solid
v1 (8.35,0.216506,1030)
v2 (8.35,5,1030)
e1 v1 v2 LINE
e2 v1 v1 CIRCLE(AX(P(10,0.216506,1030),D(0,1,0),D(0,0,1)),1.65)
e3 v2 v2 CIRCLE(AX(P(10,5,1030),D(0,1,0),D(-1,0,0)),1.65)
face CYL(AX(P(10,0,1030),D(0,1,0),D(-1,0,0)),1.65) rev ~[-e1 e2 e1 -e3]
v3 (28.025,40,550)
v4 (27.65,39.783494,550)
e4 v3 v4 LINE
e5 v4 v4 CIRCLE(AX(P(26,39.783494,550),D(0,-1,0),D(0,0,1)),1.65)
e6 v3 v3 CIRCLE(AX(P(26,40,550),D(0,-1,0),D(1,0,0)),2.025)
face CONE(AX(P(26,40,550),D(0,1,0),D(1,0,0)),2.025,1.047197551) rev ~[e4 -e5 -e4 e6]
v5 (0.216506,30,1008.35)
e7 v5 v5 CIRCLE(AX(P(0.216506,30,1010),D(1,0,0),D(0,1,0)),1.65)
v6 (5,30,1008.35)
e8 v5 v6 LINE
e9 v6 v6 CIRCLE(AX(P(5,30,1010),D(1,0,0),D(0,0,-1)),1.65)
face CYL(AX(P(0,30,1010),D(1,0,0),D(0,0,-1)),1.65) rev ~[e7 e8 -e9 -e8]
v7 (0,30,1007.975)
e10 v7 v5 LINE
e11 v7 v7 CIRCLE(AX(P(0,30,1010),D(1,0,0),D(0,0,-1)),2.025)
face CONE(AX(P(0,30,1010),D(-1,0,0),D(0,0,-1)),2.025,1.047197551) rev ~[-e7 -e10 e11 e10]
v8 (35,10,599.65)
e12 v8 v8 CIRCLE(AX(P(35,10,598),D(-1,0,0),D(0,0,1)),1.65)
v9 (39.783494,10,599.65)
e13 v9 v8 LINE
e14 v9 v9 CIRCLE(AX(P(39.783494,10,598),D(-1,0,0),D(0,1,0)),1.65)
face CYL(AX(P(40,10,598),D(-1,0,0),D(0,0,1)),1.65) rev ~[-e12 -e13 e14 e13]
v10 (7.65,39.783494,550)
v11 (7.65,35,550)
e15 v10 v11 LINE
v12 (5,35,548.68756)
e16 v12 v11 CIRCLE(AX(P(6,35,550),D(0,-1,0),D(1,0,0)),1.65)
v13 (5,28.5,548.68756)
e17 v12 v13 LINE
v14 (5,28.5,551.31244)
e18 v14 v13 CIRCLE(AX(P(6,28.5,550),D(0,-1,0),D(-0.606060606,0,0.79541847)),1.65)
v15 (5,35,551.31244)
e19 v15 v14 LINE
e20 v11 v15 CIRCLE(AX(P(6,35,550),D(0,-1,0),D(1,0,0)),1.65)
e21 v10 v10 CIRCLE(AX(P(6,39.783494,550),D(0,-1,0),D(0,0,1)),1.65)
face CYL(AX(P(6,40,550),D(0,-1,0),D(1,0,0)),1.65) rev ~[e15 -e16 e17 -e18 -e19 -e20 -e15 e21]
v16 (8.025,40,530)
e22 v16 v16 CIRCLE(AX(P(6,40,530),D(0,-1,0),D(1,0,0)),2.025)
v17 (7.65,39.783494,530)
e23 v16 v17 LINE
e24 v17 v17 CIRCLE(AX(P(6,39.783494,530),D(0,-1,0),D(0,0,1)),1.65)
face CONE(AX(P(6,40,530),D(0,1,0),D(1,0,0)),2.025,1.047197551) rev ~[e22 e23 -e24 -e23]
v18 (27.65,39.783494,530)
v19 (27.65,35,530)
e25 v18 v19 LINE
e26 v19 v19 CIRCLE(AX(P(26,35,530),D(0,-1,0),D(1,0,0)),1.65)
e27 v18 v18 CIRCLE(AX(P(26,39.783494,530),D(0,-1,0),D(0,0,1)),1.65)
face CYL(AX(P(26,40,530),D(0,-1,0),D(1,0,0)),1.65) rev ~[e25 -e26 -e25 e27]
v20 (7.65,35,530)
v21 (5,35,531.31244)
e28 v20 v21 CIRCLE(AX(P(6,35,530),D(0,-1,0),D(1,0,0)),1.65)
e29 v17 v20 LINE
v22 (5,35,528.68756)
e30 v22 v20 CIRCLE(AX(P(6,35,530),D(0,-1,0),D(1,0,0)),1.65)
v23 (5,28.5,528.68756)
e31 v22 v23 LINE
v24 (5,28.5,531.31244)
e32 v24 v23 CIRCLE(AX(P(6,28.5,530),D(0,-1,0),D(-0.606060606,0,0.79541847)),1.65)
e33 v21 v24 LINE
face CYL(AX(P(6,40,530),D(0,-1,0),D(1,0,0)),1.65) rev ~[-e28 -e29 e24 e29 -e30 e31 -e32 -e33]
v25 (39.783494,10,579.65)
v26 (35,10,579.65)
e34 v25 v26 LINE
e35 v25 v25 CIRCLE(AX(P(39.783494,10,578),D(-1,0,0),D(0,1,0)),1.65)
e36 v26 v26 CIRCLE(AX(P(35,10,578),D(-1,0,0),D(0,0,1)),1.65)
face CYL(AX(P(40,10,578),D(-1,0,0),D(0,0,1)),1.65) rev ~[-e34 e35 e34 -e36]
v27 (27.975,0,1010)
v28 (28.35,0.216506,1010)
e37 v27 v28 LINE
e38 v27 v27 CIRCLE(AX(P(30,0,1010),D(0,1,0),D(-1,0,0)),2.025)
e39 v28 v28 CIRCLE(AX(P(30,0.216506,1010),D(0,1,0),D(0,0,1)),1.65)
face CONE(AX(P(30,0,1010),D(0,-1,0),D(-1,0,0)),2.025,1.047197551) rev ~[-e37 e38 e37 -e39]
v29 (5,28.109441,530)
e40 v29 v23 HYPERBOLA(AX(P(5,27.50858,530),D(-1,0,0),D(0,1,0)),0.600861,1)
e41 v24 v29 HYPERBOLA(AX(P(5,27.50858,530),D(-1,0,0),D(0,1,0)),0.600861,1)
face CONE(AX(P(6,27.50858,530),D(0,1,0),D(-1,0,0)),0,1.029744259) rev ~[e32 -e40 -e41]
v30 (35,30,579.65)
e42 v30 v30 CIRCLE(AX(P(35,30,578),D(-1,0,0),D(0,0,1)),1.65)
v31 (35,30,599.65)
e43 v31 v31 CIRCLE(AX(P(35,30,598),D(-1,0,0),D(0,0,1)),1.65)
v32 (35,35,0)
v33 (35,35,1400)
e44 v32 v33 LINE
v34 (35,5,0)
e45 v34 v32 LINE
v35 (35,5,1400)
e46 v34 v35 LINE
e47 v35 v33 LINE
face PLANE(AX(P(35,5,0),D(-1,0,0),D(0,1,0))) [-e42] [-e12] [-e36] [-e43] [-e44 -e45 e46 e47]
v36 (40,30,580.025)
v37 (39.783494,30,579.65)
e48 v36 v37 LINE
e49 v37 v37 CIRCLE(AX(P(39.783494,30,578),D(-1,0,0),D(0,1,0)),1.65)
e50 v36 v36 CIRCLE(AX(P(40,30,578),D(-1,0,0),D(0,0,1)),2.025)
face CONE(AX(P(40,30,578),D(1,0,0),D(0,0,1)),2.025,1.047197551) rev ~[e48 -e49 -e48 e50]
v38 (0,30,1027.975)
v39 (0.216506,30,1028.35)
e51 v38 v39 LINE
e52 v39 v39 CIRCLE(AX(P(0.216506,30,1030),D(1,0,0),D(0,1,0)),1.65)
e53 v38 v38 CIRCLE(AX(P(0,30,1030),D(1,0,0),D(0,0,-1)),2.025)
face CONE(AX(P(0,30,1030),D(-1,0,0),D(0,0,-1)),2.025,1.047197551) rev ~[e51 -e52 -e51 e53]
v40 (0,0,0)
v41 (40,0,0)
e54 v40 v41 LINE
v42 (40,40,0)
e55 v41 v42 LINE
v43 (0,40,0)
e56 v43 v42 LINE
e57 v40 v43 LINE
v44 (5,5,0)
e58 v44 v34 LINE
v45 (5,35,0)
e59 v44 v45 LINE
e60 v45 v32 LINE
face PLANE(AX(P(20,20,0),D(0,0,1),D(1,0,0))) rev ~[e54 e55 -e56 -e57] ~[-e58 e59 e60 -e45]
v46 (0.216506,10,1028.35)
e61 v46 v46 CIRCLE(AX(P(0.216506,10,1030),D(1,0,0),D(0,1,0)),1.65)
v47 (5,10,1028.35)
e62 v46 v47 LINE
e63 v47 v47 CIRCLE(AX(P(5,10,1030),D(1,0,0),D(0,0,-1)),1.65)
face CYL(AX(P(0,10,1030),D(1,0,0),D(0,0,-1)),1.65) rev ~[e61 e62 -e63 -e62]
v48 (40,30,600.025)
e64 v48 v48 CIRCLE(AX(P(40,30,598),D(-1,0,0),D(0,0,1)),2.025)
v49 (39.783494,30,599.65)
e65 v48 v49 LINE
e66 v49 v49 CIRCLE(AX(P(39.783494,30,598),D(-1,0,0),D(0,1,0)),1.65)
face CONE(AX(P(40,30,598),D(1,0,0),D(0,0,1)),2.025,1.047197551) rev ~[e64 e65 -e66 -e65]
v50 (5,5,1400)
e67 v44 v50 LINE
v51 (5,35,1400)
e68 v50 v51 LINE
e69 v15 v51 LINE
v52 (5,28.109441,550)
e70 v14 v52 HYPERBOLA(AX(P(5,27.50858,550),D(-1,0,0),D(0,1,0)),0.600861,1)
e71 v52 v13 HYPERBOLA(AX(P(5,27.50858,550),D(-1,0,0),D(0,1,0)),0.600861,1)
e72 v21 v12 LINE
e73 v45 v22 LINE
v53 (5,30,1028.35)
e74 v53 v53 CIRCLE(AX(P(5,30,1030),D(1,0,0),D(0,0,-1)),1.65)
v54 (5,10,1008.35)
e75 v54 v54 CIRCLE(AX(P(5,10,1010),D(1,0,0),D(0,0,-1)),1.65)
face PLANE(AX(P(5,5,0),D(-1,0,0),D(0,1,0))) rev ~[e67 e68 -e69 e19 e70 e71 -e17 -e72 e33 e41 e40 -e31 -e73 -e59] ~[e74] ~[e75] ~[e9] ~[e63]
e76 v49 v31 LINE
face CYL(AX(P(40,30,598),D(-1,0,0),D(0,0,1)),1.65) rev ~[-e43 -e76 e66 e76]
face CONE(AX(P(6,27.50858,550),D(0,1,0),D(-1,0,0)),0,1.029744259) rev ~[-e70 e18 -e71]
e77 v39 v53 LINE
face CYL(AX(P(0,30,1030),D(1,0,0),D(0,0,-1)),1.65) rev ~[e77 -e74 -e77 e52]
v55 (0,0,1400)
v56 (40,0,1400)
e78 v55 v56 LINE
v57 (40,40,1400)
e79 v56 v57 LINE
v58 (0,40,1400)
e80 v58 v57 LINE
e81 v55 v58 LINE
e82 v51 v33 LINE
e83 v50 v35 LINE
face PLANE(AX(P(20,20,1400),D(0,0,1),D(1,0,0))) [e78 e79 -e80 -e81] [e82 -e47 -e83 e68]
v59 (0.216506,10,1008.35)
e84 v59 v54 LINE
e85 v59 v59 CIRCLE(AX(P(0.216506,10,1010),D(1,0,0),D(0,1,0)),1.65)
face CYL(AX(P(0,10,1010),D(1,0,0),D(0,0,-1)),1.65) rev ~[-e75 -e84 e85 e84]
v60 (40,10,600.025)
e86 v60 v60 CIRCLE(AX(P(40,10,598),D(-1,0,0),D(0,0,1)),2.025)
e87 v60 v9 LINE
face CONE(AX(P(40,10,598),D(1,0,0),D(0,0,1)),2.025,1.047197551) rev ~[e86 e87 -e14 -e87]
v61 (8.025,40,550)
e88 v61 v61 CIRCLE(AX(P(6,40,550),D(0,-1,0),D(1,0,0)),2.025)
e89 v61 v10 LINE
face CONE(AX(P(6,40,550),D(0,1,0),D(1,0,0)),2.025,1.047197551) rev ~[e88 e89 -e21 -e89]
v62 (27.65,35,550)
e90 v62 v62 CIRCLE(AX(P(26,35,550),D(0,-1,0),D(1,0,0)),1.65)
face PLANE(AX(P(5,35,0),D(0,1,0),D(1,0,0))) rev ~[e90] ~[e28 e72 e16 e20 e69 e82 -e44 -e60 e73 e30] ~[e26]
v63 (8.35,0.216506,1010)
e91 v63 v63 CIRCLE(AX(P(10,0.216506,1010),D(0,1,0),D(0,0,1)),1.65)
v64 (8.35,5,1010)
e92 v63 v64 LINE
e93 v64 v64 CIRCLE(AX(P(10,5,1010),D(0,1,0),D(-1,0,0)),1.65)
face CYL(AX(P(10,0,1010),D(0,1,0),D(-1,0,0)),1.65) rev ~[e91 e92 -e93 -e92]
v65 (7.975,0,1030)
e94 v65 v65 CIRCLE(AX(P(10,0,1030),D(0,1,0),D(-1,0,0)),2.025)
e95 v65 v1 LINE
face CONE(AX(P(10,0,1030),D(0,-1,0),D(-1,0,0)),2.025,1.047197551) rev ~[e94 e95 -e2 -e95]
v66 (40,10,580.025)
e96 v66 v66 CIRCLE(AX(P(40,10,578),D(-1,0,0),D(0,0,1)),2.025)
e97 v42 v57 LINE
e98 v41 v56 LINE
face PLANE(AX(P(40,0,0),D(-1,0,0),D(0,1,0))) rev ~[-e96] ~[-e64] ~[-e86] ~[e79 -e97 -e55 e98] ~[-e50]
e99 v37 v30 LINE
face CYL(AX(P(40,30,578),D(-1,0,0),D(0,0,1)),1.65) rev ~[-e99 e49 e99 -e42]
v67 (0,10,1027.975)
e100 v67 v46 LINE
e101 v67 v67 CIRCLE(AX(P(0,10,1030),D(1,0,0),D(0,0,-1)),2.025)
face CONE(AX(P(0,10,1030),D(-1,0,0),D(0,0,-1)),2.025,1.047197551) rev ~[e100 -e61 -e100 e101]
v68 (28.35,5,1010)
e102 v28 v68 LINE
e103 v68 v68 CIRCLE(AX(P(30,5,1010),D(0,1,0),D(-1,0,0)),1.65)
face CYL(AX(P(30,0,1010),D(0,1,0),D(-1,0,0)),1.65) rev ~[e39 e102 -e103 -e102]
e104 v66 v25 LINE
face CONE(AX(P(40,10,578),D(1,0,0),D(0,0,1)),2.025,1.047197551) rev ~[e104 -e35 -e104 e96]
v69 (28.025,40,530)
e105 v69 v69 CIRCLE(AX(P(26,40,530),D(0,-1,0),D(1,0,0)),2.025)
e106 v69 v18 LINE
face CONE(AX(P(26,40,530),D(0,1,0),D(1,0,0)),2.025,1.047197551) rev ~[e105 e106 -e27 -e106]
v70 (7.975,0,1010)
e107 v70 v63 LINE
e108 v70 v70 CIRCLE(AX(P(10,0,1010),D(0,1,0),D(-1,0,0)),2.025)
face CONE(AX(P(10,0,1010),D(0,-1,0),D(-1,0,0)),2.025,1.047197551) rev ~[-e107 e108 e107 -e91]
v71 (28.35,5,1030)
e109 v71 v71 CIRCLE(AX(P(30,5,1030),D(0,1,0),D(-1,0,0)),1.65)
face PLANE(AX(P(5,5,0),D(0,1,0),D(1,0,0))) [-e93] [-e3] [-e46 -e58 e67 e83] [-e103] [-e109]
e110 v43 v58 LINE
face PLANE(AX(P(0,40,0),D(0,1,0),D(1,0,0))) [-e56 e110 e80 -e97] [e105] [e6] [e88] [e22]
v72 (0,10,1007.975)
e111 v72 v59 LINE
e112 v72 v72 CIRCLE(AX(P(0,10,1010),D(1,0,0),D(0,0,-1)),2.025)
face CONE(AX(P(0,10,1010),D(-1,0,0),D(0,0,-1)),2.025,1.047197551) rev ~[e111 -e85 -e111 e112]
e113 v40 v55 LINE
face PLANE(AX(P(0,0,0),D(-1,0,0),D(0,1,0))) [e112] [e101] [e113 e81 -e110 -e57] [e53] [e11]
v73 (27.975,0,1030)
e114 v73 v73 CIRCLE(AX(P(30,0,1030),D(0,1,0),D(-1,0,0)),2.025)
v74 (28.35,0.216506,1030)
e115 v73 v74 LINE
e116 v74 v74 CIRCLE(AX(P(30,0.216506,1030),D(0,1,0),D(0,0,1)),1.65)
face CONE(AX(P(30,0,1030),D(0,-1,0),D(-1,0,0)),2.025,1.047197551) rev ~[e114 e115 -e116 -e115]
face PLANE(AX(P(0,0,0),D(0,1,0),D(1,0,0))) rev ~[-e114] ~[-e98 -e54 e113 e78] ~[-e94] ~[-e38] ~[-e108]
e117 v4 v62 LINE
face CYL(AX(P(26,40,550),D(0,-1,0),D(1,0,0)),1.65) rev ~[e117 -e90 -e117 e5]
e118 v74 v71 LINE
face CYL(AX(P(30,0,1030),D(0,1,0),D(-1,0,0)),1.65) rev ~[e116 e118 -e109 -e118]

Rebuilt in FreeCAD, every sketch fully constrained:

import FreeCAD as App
import Part
import Sketcher


def add_polygon(sketch, points):
    """Adds a closed chain of lines whose ends are joined by coincident constraints."""
    first, n = sketch.GeometryCount, len(points)
    for a, b in zip(points, points[1:] + points[:1]):
        sketch.addGeometry(Part.LineSegment(App.Vector(*a, 0), App.Vector(*b, 0)), False)
    for i in range(n):
        sketch.addConstraint(Sketcher.Constraint("Coincident", first + i, 2, first + (i + 1) % n, 1))

doc = App.newDocument("Part")
body = doc.addObject("PartDesign::Body", "Body")

# Sketch on XY plane
sketch1 = body.newObject("Sketcher::SketchObject", "Sketch")
sketch1.AttachmentSupport = (doc.getObject("XY_Plane"), [""])
sketch1.MapMode = "FlatFace"
add_polygon(sketch1, [(0, 40), (0, 0), (40, 0), (40, 40)])  # lines 0-3
add_polygon(sketch1, [(35, 5), (5, 5), (5, 35), (35, 35)])  # lines 4-7
sketch1.addConstraint(Sketcher.Constraint("Vertical", 0))
sketch1.addConstraint(Sketcher.Constraint("Horizontal", 1))
sketch1.addConstraint(Sketcher.Constraint("Vertical", 2))
sketch1.addConstraint(Sketcher.Constraint("Horizontal", 3))
sketch1.addConstraint(Sketcher.Constraint("Horizontal", 4))
sketch1.addConstraint(Sketcher.Constraint("Vertical", 5))
sketch1.addConstraint(Sketcher.Constraint("Horizontal", 6))
sketch1.addConstraint(Sketcher.Constraint("Vertical", 7))
sketch1.addConstraint(Sketcher.Constraint("Coincident", 0, 2, -1, 1))
sketch1.addConstraint(Sketcher.Constraint("Equal", 3, 0))
sketch1.addConstraint(Sketcher.Constraint("Equal", 6, 5))
sketch1.addConstraint(Sketcher.Constraint("DistanceX", 1, 1, 1, 2, 40.0))
sketch1.addConstraint(Sketcher.Constraint("DistanceX", 4, 2, 4, 1, 30.0))
sketch1.addConstraint(Sketcher.Constraint("DistanceX", -1, 1, 4, 2, 5.0))
sketch1.addConstraint(Sketcher.Constraint("DistanceY", -1, 1, 4, 2, 5.0))
pad1 = body.newObject("PartDesign::Pad", "Pad")
pad1.Profile = sketch1
pad1.Length = 1400

# Sketch on YZ plane
sketch2 = body.newObject("Sketcher::SketchObject", "Sketch001")
sketch2.AttachmentSupport = (doc.getObject("YZ_Plane"), [""])
sketch2.MapMode = "FlatFace"
sketch2.addGeometry(Part.Circle(App.Vector(30, 1030, 0), App.Vector(0, 0, 1), 1.6), False)
sketch2.addGeometry(Part.Circle(App.Vector(30, 1010, 0), App.Vector(0, 0, 1), 1.6), False)
sketch2.addGeometry(Part.Circle(App.Vector(10, 1030, 0), App.Vector(0, 0, 1), 1.6), False)
sketch2.addGeometry(Part.Circle(App.Vector(10, 1010, 0), App.Vector(0, 0, 1), 1.6), False)
sketch2.addConstraint(Sketcher.Constraint("Equal", 0, 1))
sketch2.addConstraint(Sketcher.Constraint("Equal", 1, 2))
sketch2.addConstraint(Sketcher.Constraint("Equal", 2, 3))
sketch2.addConstraint(Sketcher.Constraint("Horizontal", 0, 3, 2, 3))
sketch2.addConstraint(Sketcher.Constraint("Horizontal", 1, 3, 3, 3))
sketch2.addConstraint(Sketcher.Constraint("Vertical", 0, 3, 1, 3))
sketch2.addConstraint(Sketcher.Constraint("Vertical", 2, 3, 3, 3))
sketch2.addConstraint(Sketcher.Constraint("Diameter", 0, 3.3))
sketch2.addConstraint(Sketcher.Constraint("DistanceX", -1, 1, 0, 3, 30.0))
sketch2.addConstraint(Sketcher.Constraint("DistanceY", -1, 1, 0, 3, 1030.0))
sketch2.addConstraint(Sketcher.Constraint("DistanceY", -1, 1, 1, 3, 1010.0))
sketch2.addConstraint(Sketcher.Constraint("DistanceX", -1, 1, 2, 3, 10.0))
doc.recompute()
hole = body.newObject("PartDesign::Hole", "Hole")
hole.Profile = sketch2
hole.ThreadType = "None"
hole.Diameter = 3.3
hole.DepthType = "Dimension"
hole.Depth = 11.5
hole.DrillPoint = "Angled"
hole.DrillPointAngle = 118
hole.HoleCutType = "Countersink"
hole.HoleCutDiameter = 4.05
hole.HoleCutCountersinkAngle = 120
hole.Reversed = True

# Sketch on YZ plane
sketch3 = body.newObject("Sketcher::SketchObject", "Sketch002")
sketch3.AttachmentSupport = (doc.getObject("YZ_Plane"), [""])
sketch3.MapMode = "FlatFace"
sketch3.AttachmentOffset = App.Placement(App.Vector(0, 0, 40), App.Rotation())
sketch3.addGeometry(Part.Circle(App.Vector(30, 598, 0), App.Vector(0, 0, 1), 1.6), False)
sketch3.addGeometry(Part.Circle(App.Vector(30, 578, 0), App.Vector(0, 0, 1), 1.6), False)
sketch3.addGeometry(Part.Circle(App.Vector(10, 598, 0), App.Vector(0, 0, 1), 1.6), False)
sketch3.addGeometry(Part.Circle(App.Vector(10, 578, 0), App.Vector(0, 0, 1), 1.6), False)
sketch3.addConstraint(Sketcher.Constraint("Equal", 0, 1))
sketch3.addConstraint(Sketcher.Constraint("Equal", 1, 2))
sketch3.addConstraint(Sketcher.Constraint("Equal", 2, 3))
sketch3.addConstraint(Sketcher.Constraint("Horizontal", 0, 3, 2, 3))
sketch3.addConstraint(Sketcher.Constraint("Horizontal", 1, 3, 3, 3))
sketch3.addConstraint(Sketcher.Constraint("Vertical", 0, 3, 1, 3))
sketch3.addConstraint(Sketcher.Constraint("Vertical", 2, 3, 3, 3))
sketch3.addConstraint(Sketcher.Constraint("Diameter", 0, 3.3))
sketch3.addConstraint(Sketcher.Constraint("DistanceX", -1, 1, 0, 3, 30.0))
sketch3.addConstraint(Sketcher.Constraint("DistanceY", -1, 1, 0, 3, 598.0))
sketch3.addConstraint(Sketcher.Constraint("DistanceY", -1, 1, 1, 3, 578.0))
sketch3.addConstraint(Sketcher.Constraint("DistanceX", -1, 1, 2, 3, 10.0))
doc.recompute()
hole2 = body.newObject("PartDesign::Hole", "Hole001")
hole2.Profile = sketch3
hole2.ThreadType = "None"
hole2.Diameter = 3.3
hole2.DepthType = "Dimension"
hole2.Depth = 11.5
hole2.DrillPoint = "Angled"
hole2.DrillPointAngle = 118
hole2.HoleCutType = "Countersink"
hole2.HoleCutDiameter = 4.05
hole2.HoleCutCountersinkAngle = 120

# Sketch on XZ plane
sketch4 = body.newObject("Sketcher::SketchObject", "Sketch003")
sketch4.AttachmentSupport = (doc.getObject("XZ_Plane"), [""])
sketch4.MapMode = "FlatFace"
sketch4.addGeometry(Part.Circle(App.Vector(30, 1030, 0), App.Vector(0, 0, 1), 1.6), False)
sketch4.addGeometry(Part.Circle(App.Vector(10, 1030, 0), App.Vector(0, 0, 1), 1.6), False)
sketch4.addGeometry(Part.Circle(App.Vector(30, 1010, 0), App.Vector(0, 0, 1), 1.6), False)
sketch4.addGeometry(Part.Circle(App.Vector(10, 1010, 0), App.Vector(0, 0, 1), 1.6), False)
sketch4.addConstraint(Sketcher.Constraint("Equal", 0, 1))
sketch4.addConstraint(Sketcher.Constraint("Equal", 1, 2))
sketch4.addConstraint(Sketcher.Constraint("Equal", 2, 3))
sketch4.addConstraint(Sketcher.Constraint("Horizontal", 0, 3, 1, 3))
sketch4.addConstraint(Sketcher.Constraint("Horizontal", 2, 3, 3, 3))
sketch4.addConstraint(Sketcher.Constraint("Vertical", 0, 3, 2, 3))
sketch4.addConstraint(Sketcher.Constraint("Vertical", 1, 3, 3, 3))
sketch4.addConstraint(Sketcher.Constraint("Diameter", 0, 3.3))
sketch4.addConstraint(Sketcher.Constraint("DistanceX", -1, 1, 0, 3, 30.0))
sketch4.addConstraint(Sketcher.Constraint("DistanceY", -1, 1, 0, 3, 1030.0))
sketch4.addConstraint(Sketcher.Constraint("DistanceX", -1, 1, 1, 3, 10.0))
sketch4.addConstraint(Sketcher.Constraint("DistanceY", -1, 1, 2, 3, 1010.0))
doc.recompute()
hole3 = body.newObject("PartDesign::Hole", "Hole002")
hole3.Profile = sketch4
hole3.ThreadType = "None"
hole3.Diameter = 3.3
hole3.DepthType = "Dimension"
hole3.Depth = 11.5
hole3.DrillPoint = "Angled"
hole3.DrillPointAngle = 118
hole3.HoleCutType = "Countersink"
hole3.HoleCutDiameter = 4.05
hole3.HoleCutCountersinkAngle = 120

# Sketch on XZ plane
sketch5 = body.newObject("Sketcher::SketchObject", "Sketch004")
sketch5.AttachmentSupport = (doc.getObject("XZ_Plane"), [""])
sketch5.MapMode = "FlatFace"
sketch5.AttachmentOffset = App.Placement(App.Vector(0, 0, -40), App.Rotation())
sketch5.addGeometry(Part.Circle(App.Vector(6, 550, 0), App.Vector(0, 0, 1), 1.6), False)
sketch5.addGeometry(Part.Circle(App.Vector(26, 550, 0), App.Vector(0, 0, 1), 1.6), False)
sketch5.addGeometry(Part.Circle(App.Vector(6, 530, 0), App.Vector(0, 0, 1), 1.6), False)
sketch5.addGeometry(Part.Circle(App.Vector(26, 530, 0), App.Vector(0, 0, 1), 1.6), False)
sketch5.addConstraint(Sketcher.Constraint("Equal", 0, 1))
sketch5.addConstraint(Sketcher.Constraint("Equal", 1, 2))
sketch5.addConstraint(Sketcher.Constraint("Equal", 2, 3))
sketch5.addConstraint(Sketcher.Constraint("Horizontal", 0, 3, 1, 3))
sketch5.addConstraint(Sketcher.Constraint("Horizontal", 2, 3, 3, 3))
sketch5.addConstraint(Sketcher.Constraint("Vertical", 0, 3, 2, 3))
sketch5.addConstraint(Sketcher.Constraint("Vertical", 1, 3, 3, 3))
sketch5.addConstraint(Sketcher.Constraint("Diameter", 0, 3.3))
sketch5.addConstraint(Sketcher.Constraint("DistanceX", -1, 1, 0, 3, 6.0))
sketch5.addConstraint(Sketcher.Constraint("DistanceY", -1, 1, 0, 3, 550.0))
sketch5.addConstraint(Sketcher.Constraint("DistanceX", -1, 1, 1, 3, 26.0))
sketch5.addConstraint(Sketcher.Constraint("DistanceY", -1, 1, 2, 3, 530.0))
doc.recompute()
hole4 = body.newObject("PartDesign::Hole", "Hole003")
hole4.Profile = sketch5
hole4.ThreadType = "None"
hole4.Diameter = 3.3
hole4.DepthType = "Dimension"
hole4.Depth = 11.5
hole4.DrillPoint = "Angled"
hole4.DrillPointAngle = 118
hole4.HoleCutType = "Countersink"
hole4.HoleCutDiameter = 4.05
hole4.HoleCutCountersinkAngle = 120
hole4.Reversed = True

doc.recompute()
